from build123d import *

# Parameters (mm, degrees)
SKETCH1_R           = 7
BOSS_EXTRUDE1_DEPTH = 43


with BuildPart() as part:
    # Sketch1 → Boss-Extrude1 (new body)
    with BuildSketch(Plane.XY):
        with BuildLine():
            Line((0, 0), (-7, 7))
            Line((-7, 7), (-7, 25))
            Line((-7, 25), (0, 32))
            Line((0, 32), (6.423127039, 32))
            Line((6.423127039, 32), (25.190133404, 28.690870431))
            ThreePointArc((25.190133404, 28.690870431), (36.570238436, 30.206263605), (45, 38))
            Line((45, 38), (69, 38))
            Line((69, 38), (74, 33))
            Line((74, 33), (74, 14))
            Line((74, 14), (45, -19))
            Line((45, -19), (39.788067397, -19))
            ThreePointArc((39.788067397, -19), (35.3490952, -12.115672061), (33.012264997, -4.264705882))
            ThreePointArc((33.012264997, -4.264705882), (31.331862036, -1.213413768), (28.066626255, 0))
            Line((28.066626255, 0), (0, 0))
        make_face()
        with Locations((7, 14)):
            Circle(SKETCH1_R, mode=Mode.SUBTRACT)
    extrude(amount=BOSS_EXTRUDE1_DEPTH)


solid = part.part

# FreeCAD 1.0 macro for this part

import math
import FreeCAD as App
import Part
import Sketcher
from FreeCAD import Vector
Q = App.Units.Quantity

doc = App.newDocument("Part")
body = doc.addObject("PartDesign::Body", "Body")

sketch1 = body.newObject("Sketcher::SketchObject", "Sketch")
sketch1.AttachmentSupport = (doc.getObject("XY_Plane"), [""])
sketch1.MapMode = "FlatFace"
sketch1.addGeometry(Part.LineSegment(Vector(-7, 7, 0), Vector(0, 0, 0)), False)
sketch1.addGeometry(Part.LineSegment(Vector(0, 0, 0), Vector(28, 0, 0)), False)
sketch1.addGeometry(Part.ArcOfCircle(Part.Circle(Vector(28, -5, 0), Vector(0, 0, 1), 5), math.radians(8), math.radians(90)), False)
sketch1.addGeometry(Part.ArcOfCircle(Part.Circle(Vector(62, 0, 0), Vector(0, 0, 1), 29), math.radians(-172), math.radians(-139)), False)
sketch1.addGeometry(Part.LineSegment(Vector(40, -19, 0), Vector(45, -19, 0)), False)
sketch1.addGeometry(Part.LineSegment(Vector(45, -19, 0), Vector(74, 14, 0)), False)
sketch1.addGeometry(Part.LineSegment(Vector(74, 14, 0), Vector(74, 33, 0)), False)
sketch1.addGeometry(Part.LineSegment(Vector(74, 33, 0), Vector(69, 38, 0)), False)
sketch1.addGeometry(Part.LineSegment(Vector(69, 38, 0), Vector(45, 38, 0)), False)
sketch1.addGeometry(Part.ArcOfCircle(Part.Circle(Vector(28, 47, 0), Vector(0, 0, 1), 19), math.radians(-100), math.radians(-30)), False)
sketch1.addGeometry(Part.LineSegment(Vector(25, 29, 0), Vector(6, 32, 0)), False)
sketch1.addGeometry(Part.LineSegment(Vector(6, 32, 0), Vector(0, 32, 0)), False)
sketch1.addGeometry(Part.LineSegment(Vector(0, 32, 0), Vector(-7, 25, 0)), False)
sketch1.addGeometry(Part.LineSegment(Vector(-7, 25, 0), Vector(-7, 7, 0)), False)
sketch1.addGeometry(Part.Circle(Vector(7, 14, 0), Vector(0, 0, 1), 7), False)
sketch1.addConstraint(Sketcher.Constraint("Coincident", 0, 2, 1, 1))
sketch1.addConstraint(Sketcher.Constraint("Tangent", 1, 2, 2, 2))
sketch1.addConstraint(Sketcher.Constraint("Tangent", 2, 1, 3, 1))
sketch1.addConstraint(Sketcher.Constraint("Coincident", 3, 2, 4, 1))
sketch1.addConstraint(Sketcher.Constraint("Coincident", 4, 2, 5, 1))
sketch1.addConstraint(Sketcher.Constraint("Coincident", 5, 2, 6, 1))
sketch1.addConstraint(Sketcher.Constraint("Coincident", 6, 2, 7, 1))
sketch1.addConstraint(Sketcher.Constraint("Coincident", 7, 2, 8, 1))
sketch1.addConstraint(Sketcher.Constraint("Coincident", 8, 2, 9, 2))
sketch1.addConstraint(Sketcher.Constraint("Tangent", 9, 1, 10, 1))
sketch1.addConstraint(Sketcher.Constraint("Coincident", 10, 2, 11, 1))
sketch1.addConstraint(Sketcher.Constraint("Coincident", 11, 2, 12, 1))
sketch1.addConstraint(Sketcher.Constraint("Coincident", 12, 2, 13, 1))
sketch1.addConstraint(Sketcher.Constraint("Coincident", 13, 2, 0, 1))
sketch1.addConstraint(Sketcher.Constraint("Horizontal", 1))
sketch1.addConstraint(Sketcher.Constraint("Horizontal", 4))
sketch1.addConstraint(Sketcher.Constraint("Vertical", 6))
sketch1.addConstraint(Sketcher.Constraint("Horizontal", 8))
sketch1.addConstraint(Sketcher.Constraint("Horizontal", 11))
sketch1.addConstraint(Sketcher.Constraint("Vertical", 13))
sketch1.addConstraint(Sketcher.Constraint("Coincident", 0, 2, -1, 1))
sketch1.addConstraint(Sketcher.Constraint("PointOnObject", 3, 3, -1))
sketch1.addConstraint(Sketcher.Constraint("PointOnObject", 11, 2, -2))
sketch1.addConstraint(Sketcher.Constraint("Parallel", 0, 7))
sketch1.addConstraint(Sketcher.Constraint("Perpendicular", 7, 12))
sketch1.addConstraint(Sketcher.Constraint("Horizontal", 14, 3, 5, 2))
sketch1.addConstraint(Sketcher.Constraint("Vertical", 4, 2, 8, 2))
sketch1.addConstraint(Sketcher.Constraint("Equal", 0, 12))
sketch1.addConstraint(Sketcher.Constraint("Diameter", 14, 14.0))
sketch1.addConstraint(Sketcher.Constraint("Radius", 2, 5.0))
sketch1.addConstraint(Sketcher.Constraint("Radius", 3, 29.0))
sketch1.addConstraint(Sketcher.Constraint("Radius", 9, 19.0))
sketch1.addConstraint(Sketcher.Constraint("DistanceX", 8, 2, 8, 1, 24.0))
sketch1.addConstraint(Sketcher.Constraint("DistanceY", 6, 1, 6, 2, 19.0))
sketch1.addConstraint(Sketcher.Constraint("DistanceY", 13, 2, 13, 1, 18.0))
sketch1.addConstraint(Sketcher.Constraint("Angle", 10, Q("170 deg")))
sketch1.addConstraint(Sketcher.Constraint("DistanceX", -1, 1, 14, 3, 7.0))
sketch1.addConstraint(Sketcher.Constraint("DistanceY", -1, 1, 14, 3, 14.0))
sketch1.addConstraint(Sketcher.Constraint("DistanceY", 3, 2, -1, 1, 19.0))
sketch1.addConstraint(Sketcher.Constraint("DistanceX", -1, 1, 4, 2, 45.0))
sketch1.addConstraint(Sketcher.Constraint("DistanceX", -1, 1, 5, 2, 74.0))
sketch1.addConstraint(Sketcher.Constraint("DistanceY", -1, 1, 10, 2, 32.0))
sketch1.addConstraint(Sketcher.Constraint("DistanceX", 10, 2, 1, 2, 21.643499))
sketch1.addConstraint(Sketcher.Constraint("DistanceX", 1, 1, 1, 2, 28.066626))
pad1 = body.newObject("PartDesign::Pad", "Pad")
pad1.Profile = sketch1
pad1.Length = 43

doc.recompute()
